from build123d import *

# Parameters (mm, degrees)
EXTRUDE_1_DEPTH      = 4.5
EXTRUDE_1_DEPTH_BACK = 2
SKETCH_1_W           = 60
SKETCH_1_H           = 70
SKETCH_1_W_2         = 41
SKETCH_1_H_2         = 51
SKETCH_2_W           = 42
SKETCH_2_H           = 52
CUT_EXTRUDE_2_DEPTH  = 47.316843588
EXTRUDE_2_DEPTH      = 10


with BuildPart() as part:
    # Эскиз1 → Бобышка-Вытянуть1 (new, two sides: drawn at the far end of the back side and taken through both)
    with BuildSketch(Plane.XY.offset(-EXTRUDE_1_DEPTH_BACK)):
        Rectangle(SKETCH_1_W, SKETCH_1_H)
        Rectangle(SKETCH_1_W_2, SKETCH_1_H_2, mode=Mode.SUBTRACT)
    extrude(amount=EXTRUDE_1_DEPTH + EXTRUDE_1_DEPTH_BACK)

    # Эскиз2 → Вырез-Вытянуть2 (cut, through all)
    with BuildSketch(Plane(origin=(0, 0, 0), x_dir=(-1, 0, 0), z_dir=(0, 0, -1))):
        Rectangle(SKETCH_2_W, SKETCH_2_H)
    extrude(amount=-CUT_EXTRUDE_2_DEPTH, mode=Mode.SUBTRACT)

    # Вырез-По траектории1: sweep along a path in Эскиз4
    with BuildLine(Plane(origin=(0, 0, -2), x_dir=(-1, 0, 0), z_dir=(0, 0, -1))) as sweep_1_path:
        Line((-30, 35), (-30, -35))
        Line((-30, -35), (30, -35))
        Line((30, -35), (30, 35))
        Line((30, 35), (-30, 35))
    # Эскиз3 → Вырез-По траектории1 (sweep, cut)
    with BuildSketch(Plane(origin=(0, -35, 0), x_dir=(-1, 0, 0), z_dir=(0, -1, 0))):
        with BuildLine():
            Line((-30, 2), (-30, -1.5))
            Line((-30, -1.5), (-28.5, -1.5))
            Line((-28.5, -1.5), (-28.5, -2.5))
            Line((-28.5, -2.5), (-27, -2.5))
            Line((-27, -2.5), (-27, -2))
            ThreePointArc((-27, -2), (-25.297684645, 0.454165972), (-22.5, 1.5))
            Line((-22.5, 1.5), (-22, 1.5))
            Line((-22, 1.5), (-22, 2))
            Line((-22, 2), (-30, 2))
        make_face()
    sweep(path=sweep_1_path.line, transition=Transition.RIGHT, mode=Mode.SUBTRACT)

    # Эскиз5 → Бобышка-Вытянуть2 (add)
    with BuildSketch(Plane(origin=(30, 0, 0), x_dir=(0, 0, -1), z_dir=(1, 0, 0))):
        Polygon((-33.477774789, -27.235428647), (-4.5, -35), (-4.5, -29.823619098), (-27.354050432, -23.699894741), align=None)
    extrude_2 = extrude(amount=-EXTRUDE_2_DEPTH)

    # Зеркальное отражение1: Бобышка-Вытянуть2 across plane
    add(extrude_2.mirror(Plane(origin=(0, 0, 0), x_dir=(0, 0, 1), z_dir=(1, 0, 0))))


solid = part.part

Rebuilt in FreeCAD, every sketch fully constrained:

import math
import FreeCAD as App
import Part
import Sketcher
from FreeCAD import Vector
Q = App.Units.Quantity


def add_polygon(sketch, points):
    """Adds a closed chain of lines whose ends are joined by coincident constraints."""
    first, n = sketch.GeometryCount, len(points)
    for a, b in zip(points, points[1:] + points[:1]):
        sketch.addGeometry(Part.LineSegment(App.Vector(*a, 0), App.Vector(*b, 0)), False)
    for i in range(n):
        sketch.addConstraint(Sketcher.Constraint("Coincident", first + i, 2, first + (i + 1) % n, 1))

doc = App.newDocument("Part")
body = doc.addObject("PartDesign::Body", "Body")

# Sketch on XY plane
sketch1 = body.newObject("Sketcher::SketchObject", "Sketch")
sketch1.AttachmentSupport = (doc.getObject("XY_Plane"), [""])
sketch1.MapMode = "FlatFace"
add_polygon(sketch1, [(-30, 35), (-30, -35), (30, -35), (30, 35)])  # lines 0-3
add_polygon(sketch1, [(20, -26), (-20, -26), (-20, 26), (20, 26)])  # lines 4-7
sketch1.addConstraint([
    Sketcher.Constraint("Vertical", 0),
    Sketcher.Constraint("Horizontal", 1),
    Sketcher.Constraint("Vertical", 2),
    Sketcher.Constraint("Horizontal", 3),
    Sketcher.Constraint("Horizontal", 4),
    Sketcher.Constraint("Vertical", 5),
    Sketcher.Constraint("Horizontal", 6),
    Sketcher.Constraint("Vertical", 7),
    Sketcher.Constraint("Symmetric", 0, 2, 2, 2, -1, 1),
    Sketcher.Constraint("Symmetric", 4, 2, 6, 2, -1, 1),
    Sketcher.Constraint("DistanceX", 1, 1, 1, 2, Q("60 mm")),
    Sketcher.Constraint("DistanceX", 4, 2, 4, 1, Q("41 mm")),
    Sketcher.Constraint("DistanceY", 0, 2, 0, 1, Q("70 mm")),
    Sketcher.Constraint("DistanceY", 5, 1, 5, 2, Q("51 mm")),
])
pad1 = body.newObject("PartDesign::Pad", "Pad")
pad1.Profile = sketch1
pad1.Type = "TwoLengths"
pad1.Length = 4.5
pad1.Length2 = 2

# Sketch on XY plane
sketch2 = body.newObject("Sketcher::SketchObject", "Sketch001")
sketch2.AttachmentSupport = (doc.getObject("XY_Plane"), [""])
sketch2.MapMode = "FlatFace"
add_polygon(sketch2, [(21, 26), (21, -26), (-21, -26), (-21, 26)])  # lines 0-3
sketch2.addConstraint([
    Sketcher.Constraint("Vertical", 0),
    Sketcher.Constraint("Horizontal", 1),
    Sketcher.Constraint("Vertical", 2),
    Sketcher.Constraint("Horizontal", 3),
    Sketcher.Constraint("Symmetric", 0, 2, 2, 2, -1, 1),
    Sketcher.Constraint("DistanceX", 1, 2, 1, 1, Q("42 mm")),
    Sketcher.Constraint("DistanceY", 0, 2, 0, 1, Q("52 mm")),
])
pocket1 = body.newObject("PartDesign::Pocket", "Pocket")
pocket1.Profile = sketch2
pocket1.Type = "ThroughAll"
pocket1.Reversed = True

# Sketch on XZ plane
sketch3 = body.newObject("Sketcher::SketchObject", "Sketch002")
sketch3.AttachmentSupport = (doc.getObject("XZ_Plane"), [""])
sketch3.MapMode = "FlatFace"
sketch3.AttachmentOffset = App.Placement(Vector(0, 0, 35), App.Rotation())
sketch3.addGeometry([
    Part.LineSegment(Vector(30, -2, 0), Vector(30, 1.5, 0)),  # 0
    Part.LineSegment(Vector(30, 1.5, 0), Vector(28.5, 1.5, 0)),  # 1
    Part.LineSegment(Vector(28.5, 1.5, 0), Vector(28.5, 2.5, 0)),  # 2
    Part.LineSegment(Vector(28.5, 2.5, 0), Vector(27, 2.5, 0)),  # 3
    Part.LineSegment(Vector(27, 2.5, 0), Vector(27, 2, 0)),  # 4
    Part.ArcOfCircle(Part.Circle(Vector(22.2, 3.5, 0), Vector(0, 0, 1), 5), math.radians(-87), math.radians(-17)),  # 5
    Part.LineSegment(Vector(22.5, -1.5, 0), Vector(22, -1.5, 0)),  # 6
    Part.LineSegment(Vector(22, -1.5, 0), Vector(22, -2, 0)),  # 7
    Part.LineSegment(Vector(22, -2, 0), Vector(30, -2, 0)),  # 8
], False)
sketch3.addConstraint([
    Sketcher.Constraint("Coincident", 0, 2, 1, 1),
    Sketcher.Constraint("Coincident", 1, 2, 2, 1),
    Sketcher.Constraint("Coincident", 2, 2, 3, 1),
    Sketcher.Constraint("Coincident", 3, 2, 4, 1),
    Sketcher.Constraint("Coincident", 4, 2, 5, 2),
    Sketcher.Constraint("Coincident", 5, 1, 6, 1),
    Sketcher.Constraint("Coincident", 6, 2, 7, 1),
    Sketcher.Constraint("Coincident", 7, 2, 8, 1),
    Sketcher.Constraint("Coincident", 8, 2, 0, 1),
    Sketcher.Constraint("Vertical", 0),
    Sketcher.Constraint("Horizontal", 1),
    Sketcher.Constraint("Vertical", 2),
    Sketcher.Constraint("Horizontal", 3),
    Sketcher.Constraint("Vertical", 4),
    Sketcher.Constraint("Horizontal", 6),
    Sketcher.Constraint("Vertical", 7),
    Sketcher.Constraint("Horizontal", 8),
    Sketcher.Constraint("Equal", 1, 3),
    Sketcher.Constraint("Equal", 6, 4),
    Sketcher.Constraint("Equal", 4, 7),
    Sketcher.Constraint("Radius", 5, Q("5 mm")),
    Sketcher.Constraint("DistanceX", 8, 1, 8, 2, Q("8 mm")),
    Sketcher.Constraint("DistanceY", 2, 1, 2, 2, Q("1 mm")),
    Sketcher.Constraint("DistanceX", 1, 2, 1, 1, Q("1.5 mm")),
    Sketcher.Constraint("DistanceX", 6, 2, 6, 1, Q("0.5 mm")),
    Sketcher.Constraint("DistanceY", 0, 1, 0, 2, Q("3.5 mm")),
    Sketcher.Constraint("DistanceX", -1, 1, 0, 2, Q("30 mm")),
    Sketcher.Constraint("DistanceY", -1, 1, 4, 2, Q("2 mm")),
])

# Sketch on XY plane
sketch4 = body.newObject("Sketcher::SketchObject", "Sketch003")
sketch4.AttachmentSupport = (doc.getObject("XY_Plane"), [""])
sketch4.MapMode = "FlatFace"
sketch4.AttachmentOffset = App.Placement(Vector(0, 0, -2), App.Rotation())
add_polygon(sketch4, [(30, 35), (30, -35), (-30, -35), (-30, 35)])  # lines 0-3
sketch4.addConstraint([
    Sketcher.Constraint("Vertical", 0),
    Sketcher.Constraint("Horizontal", 1),
    Sketcher.Constraint("Vertical", 2),
    Sketcher.Constraint("Horizontal", 3),
    Sketcher.Constraint("Symmetric", 0, 2, 2, 2, -1, 1),
    Sketcher.Constraint("DistanceX", 1, 2, 1, 1, Q("60 mm")),
    Sketcher.Constraint("DistanceY", 0, 2, 0, 1, Q("70 mm")),
])
doc.recompute()

subtractivepipe = body.newObject("PartDesign::SubtractivePipe", "SubtractivePipe")
subtractivepipe.Profile = sketch3
subtractivepipe.Spine = (sketch4, ["Edge1", "Edge2", "Edge3", "Edge4"])
subtractivepipe.Transition = "Right corner"

# Sketch on YZ plane
sketch5 = body.newObject("Sketcher::SketchObject", "Sketch004")
sketch5.AttachmentSupport = (doc.getObject("YZ_Plane"), [""])
sketch5.MapMode = "FlatFace"
sketch5.AttachmentOffset = App.Placement(Vector(0, 0, 30), App.Rotation())
add_polygon(sketch5, [(-27, 33), (-35, 4), (-30, 4), (-24, 27)])  # lines 0-3
sketch5.addConstraint([
    Sketcher.Constraint("Horizontal", 1),
    Sketcher.Constraint("Parallel", 0, 2),
    Sketcher.Constraint("Angle", 0, Q("-105 deg")),
    Sketcher.Constraint("Angle", 3, Q("120 deg")),
    Sketcher.Constraint("Distance", 0, Q("30 mm")),
    Sketcher.Constraint("DistanceX", 0, 2, -1, 1, Q("35 mm")),
    Sketcher.Constraint("DistanceY", -1, 1, 0, 2, Q("4.5 mm")),
    Sketcher.Constraint("DistanceX", 1, 1, 1, 2, Q("5.176381 mm")),
])
pad2 = body.newObject("PartDesign::Pad", "Pad001")
pad2.Profile = sketch5
pad2.Length = 10
pad2.Reversed = True
doc.recompute()

mirrored = body.newObject("PartDesign::Mirrored", "Mirrored")
mirrored.Originals = [pad2]
mirrored.MirrorPlane = (doc.getObject("YZ_Plane"), [""])
body.Tip = mirrored

doc.recompute()
